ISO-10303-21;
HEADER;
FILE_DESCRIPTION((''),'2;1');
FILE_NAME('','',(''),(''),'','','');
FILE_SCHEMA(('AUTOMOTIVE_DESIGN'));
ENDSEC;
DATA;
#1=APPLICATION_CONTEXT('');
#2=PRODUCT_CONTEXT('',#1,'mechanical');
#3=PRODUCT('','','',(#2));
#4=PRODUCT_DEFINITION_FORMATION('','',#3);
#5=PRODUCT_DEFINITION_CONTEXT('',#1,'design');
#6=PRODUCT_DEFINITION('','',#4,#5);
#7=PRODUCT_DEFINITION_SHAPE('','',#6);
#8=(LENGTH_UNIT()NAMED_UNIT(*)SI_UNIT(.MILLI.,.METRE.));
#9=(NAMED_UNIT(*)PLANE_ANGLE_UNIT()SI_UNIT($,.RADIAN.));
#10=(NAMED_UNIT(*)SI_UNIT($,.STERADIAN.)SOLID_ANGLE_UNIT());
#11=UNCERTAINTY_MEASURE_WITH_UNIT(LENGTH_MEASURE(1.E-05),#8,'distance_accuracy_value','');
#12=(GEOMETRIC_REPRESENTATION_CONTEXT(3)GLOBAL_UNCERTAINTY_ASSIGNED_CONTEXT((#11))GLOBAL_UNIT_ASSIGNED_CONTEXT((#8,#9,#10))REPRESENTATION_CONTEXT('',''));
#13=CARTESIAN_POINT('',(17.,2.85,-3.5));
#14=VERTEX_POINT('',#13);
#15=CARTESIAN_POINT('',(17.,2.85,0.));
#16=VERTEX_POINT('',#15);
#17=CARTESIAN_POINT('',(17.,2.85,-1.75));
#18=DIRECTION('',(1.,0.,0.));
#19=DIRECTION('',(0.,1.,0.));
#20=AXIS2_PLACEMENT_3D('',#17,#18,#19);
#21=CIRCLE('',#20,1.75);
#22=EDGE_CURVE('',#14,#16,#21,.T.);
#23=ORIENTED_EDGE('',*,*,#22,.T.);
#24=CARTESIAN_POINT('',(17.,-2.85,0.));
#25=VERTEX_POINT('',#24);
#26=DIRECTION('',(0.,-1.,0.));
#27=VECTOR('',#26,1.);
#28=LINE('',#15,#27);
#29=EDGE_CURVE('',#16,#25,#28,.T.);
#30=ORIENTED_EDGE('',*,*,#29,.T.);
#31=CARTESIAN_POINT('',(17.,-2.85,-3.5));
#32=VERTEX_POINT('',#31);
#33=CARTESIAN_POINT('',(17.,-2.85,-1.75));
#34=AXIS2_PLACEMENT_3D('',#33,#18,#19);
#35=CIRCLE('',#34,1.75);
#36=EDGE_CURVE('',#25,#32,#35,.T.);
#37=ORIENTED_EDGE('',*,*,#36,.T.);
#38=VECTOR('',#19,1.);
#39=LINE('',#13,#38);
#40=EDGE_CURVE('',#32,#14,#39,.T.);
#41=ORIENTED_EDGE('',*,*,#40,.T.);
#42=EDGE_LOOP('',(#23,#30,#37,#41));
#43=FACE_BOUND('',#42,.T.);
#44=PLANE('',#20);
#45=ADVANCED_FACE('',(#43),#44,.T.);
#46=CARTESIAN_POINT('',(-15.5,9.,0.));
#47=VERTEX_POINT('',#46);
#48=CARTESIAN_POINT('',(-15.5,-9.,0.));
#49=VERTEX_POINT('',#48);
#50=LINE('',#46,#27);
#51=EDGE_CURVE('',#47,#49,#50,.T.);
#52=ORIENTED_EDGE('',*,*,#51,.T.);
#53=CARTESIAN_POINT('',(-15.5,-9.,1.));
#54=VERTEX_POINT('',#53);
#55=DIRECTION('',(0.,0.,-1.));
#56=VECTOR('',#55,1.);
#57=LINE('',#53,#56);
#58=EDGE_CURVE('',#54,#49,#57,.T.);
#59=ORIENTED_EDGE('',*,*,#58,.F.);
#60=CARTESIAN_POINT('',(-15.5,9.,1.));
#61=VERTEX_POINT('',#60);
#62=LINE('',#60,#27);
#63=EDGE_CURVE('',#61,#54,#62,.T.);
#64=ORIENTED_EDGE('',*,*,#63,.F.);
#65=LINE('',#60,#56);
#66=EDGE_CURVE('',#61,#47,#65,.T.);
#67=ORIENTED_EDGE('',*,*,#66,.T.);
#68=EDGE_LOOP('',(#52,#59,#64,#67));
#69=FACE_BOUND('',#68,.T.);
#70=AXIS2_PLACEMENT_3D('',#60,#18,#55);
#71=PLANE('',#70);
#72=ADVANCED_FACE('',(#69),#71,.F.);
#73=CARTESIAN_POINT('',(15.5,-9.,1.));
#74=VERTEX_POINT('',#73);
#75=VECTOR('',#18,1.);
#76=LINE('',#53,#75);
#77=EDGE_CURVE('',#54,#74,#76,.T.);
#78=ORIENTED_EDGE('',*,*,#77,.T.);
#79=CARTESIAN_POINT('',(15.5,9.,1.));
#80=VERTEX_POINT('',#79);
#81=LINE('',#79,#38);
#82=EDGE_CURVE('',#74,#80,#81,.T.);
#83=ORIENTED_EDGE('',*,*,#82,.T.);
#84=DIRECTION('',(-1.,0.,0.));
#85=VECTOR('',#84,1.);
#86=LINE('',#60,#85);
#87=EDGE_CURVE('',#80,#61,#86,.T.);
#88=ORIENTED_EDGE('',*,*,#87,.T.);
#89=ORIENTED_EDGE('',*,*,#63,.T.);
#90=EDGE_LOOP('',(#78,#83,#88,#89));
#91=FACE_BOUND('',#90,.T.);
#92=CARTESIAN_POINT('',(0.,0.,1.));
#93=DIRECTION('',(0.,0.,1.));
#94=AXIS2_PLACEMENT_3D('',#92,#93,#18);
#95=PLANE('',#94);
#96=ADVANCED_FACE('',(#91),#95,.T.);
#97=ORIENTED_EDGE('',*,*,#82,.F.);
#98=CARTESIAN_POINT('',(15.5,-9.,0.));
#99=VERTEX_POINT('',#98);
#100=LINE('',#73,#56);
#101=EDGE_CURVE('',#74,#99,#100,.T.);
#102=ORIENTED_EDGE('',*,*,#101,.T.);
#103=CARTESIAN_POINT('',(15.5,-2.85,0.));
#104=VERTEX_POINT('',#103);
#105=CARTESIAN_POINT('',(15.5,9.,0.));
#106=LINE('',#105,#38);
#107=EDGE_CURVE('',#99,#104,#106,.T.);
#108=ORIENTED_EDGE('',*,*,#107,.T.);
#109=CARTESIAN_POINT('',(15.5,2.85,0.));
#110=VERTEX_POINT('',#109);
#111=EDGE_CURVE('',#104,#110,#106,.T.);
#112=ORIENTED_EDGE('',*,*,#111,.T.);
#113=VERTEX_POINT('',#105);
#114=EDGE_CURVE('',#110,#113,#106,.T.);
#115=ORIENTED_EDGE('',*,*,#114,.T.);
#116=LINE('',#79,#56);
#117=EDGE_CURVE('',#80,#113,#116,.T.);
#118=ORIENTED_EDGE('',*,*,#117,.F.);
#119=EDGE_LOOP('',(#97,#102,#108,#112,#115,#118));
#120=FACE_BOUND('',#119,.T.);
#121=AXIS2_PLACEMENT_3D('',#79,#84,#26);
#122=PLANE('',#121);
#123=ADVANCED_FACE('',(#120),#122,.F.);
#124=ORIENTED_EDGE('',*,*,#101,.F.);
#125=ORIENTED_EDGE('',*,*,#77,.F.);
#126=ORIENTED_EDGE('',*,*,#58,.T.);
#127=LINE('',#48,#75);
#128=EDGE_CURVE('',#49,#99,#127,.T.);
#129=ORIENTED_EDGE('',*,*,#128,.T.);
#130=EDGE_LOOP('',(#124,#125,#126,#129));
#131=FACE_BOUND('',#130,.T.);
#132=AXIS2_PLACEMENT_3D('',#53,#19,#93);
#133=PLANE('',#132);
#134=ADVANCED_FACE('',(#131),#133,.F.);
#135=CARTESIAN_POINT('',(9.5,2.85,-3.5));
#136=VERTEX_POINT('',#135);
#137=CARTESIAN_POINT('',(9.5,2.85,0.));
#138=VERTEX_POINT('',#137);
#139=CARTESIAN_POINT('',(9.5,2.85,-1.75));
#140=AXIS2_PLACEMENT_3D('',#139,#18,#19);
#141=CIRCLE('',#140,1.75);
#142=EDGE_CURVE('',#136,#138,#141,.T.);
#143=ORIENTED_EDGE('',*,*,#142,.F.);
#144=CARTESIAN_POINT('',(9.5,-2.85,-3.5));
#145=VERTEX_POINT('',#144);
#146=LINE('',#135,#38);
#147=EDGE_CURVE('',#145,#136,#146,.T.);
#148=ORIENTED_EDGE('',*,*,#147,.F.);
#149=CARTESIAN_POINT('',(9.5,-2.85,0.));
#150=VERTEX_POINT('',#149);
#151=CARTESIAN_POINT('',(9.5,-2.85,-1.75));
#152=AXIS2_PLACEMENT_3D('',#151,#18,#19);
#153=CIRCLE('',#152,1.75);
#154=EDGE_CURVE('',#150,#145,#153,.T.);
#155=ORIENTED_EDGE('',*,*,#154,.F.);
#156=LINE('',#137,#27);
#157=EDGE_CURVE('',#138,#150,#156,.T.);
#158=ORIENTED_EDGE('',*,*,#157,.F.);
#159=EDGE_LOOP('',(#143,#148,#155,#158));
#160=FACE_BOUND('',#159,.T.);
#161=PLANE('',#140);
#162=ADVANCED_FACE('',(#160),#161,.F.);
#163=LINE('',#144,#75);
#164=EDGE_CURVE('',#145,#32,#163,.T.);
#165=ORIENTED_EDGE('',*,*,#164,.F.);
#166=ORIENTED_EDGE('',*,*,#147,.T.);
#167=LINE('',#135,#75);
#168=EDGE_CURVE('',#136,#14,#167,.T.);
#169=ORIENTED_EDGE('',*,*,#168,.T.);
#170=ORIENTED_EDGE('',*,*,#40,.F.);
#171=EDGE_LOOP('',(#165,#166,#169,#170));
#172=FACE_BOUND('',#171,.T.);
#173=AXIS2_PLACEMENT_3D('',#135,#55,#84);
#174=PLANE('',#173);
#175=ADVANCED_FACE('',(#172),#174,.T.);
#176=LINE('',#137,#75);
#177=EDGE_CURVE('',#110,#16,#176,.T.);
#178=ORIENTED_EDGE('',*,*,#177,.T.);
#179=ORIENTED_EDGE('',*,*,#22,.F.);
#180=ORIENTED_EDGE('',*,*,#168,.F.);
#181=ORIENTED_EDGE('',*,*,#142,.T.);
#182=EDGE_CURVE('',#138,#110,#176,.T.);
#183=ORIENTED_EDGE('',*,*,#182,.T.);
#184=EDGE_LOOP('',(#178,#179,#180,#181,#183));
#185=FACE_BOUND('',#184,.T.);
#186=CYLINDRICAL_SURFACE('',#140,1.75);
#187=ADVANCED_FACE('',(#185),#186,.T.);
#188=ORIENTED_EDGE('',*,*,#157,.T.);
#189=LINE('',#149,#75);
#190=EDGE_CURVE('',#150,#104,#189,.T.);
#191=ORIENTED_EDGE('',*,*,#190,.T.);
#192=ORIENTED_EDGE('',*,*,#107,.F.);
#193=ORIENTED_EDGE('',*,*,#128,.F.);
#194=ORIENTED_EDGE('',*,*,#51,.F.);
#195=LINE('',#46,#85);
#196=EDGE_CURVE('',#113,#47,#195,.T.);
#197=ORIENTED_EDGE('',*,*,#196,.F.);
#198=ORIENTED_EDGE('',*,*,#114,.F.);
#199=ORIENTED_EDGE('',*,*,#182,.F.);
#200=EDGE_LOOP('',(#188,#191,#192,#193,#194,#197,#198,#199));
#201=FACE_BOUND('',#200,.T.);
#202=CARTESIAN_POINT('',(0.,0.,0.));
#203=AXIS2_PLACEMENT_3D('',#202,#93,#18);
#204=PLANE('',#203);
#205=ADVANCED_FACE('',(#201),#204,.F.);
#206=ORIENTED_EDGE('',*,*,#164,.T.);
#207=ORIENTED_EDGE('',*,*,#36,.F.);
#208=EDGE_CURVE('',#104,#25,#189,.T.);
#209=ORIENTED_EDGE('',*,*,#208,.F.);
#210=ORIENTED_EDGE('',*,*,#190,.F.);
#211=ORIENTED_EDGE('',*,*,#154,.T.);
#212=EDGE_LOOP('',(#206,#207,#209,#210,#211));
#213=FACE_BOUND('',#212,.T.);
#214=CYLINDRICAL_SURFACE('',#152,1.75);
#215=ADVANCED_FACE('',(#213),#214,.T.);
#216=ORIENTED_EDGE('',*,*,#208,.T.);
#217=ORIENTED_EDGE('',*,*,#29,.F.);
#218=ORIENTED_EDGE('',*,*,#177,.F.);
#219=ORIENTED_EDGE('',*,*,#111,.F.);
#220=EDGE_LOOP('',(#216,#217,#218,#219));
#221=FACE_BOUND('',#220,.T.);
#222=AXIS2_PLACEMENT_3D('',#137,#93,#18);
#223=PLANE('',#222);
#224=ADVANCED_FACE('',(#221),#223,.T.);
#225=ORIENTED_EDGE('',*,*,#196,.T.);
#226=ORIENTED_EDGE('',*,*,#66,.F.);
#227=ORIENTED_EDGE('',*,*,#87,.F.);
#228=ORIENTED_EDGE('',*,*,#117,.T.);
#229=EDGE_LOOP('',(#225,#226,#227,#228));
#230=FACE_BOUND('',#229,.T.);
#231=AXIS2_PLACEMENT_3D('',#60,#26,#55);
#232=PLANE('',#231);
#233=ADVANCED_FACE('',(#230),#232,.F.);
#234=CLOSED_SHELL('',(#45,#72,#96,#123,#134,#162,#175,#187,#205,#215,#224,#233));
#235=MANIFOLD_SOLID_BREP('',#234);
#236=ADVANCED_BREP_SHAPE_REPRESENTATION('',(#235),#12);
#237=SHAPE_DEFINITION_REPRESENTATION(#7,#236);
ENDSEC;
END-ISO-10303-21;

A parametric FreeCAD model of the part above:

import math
import FreeCAD as App
import Part
import Sketcher

V = App.Vector

doc = App.newDocument("Part")
body = doc.addObject("PartDesign::Body", "Body")

sketch1 = doc.addObject("Sketcher::SketchObject", "Sketch")
body.addObject(sketch1)
sketch1.AttachmentSupport = (doc.XY_Plane, [""])
sketch1.MapMode = "FlatFace"
sketch1.addGeometry(Part.LineSegment(V(-16, 9, 0), V(-16, -9, 0)), False)
sketch1.addGeometry(Part.LineSegment(V(-16, -9, 0), V(16, -9, 0)), False)
sketch1.addGeometry(Part.LineSegment(V(16, -9, 0), V(16, 9, 0)), False)
sketch1.addGeometry(Part.LineSegment(V(16, 9, 0), V(-16, 9, 0)), False)
sketch1.addConstraint(Sketcher.Constraint("Coincident", 0, 2, 1, 1))
sketch1.addConstraint(Sketcher.Constraint("Coincident", 1, 2, 2, 1))
sketch1.addConstraint(Sketcher.Constraint("Coincident", 2, 2, 3, 1))
sketch1.addConstraint(Sketcher.Constraint("Coincident", 3, 2, 0, 1))
sketch1.addConstraint(Sketcher.Constraint("Vertical", 0))
sketch1.addConstraint(Sketcher.Constraint("Horizontal", 1))
sketch1.addConstraint(Sketcher.Constraint("Vertical", 2))
sketch1.addConstraint(Sketcher.Constraint("Horizontal", 3))
sketch1.addConstraint(Sketcher.Constraint("Symmetric", 0, 2, 2, 2, -1, 1))
sketch1.addConstraint(Sketcher.Constraint("DistanceX", 1, 1, 1, 2, 31.0))
sketch1.addConstraint(Sketcher.Constraint("DistanceY", 0, 2, 0, 1, 18.0))
pad1 = doc.addObject("PartDesign::Pad", "Pad")
body.addObject(pad1)
pad1.Profile = sketch1
pad1.Length = 1

sketch2 = doc.addObject("Sketcher::SketchObject", "Sketch001")
body.addObject(sketch2)
sketch2.AttachmentSupport = (doc.YZ_Plane, [""])
sketch2.MapMode = "FlatFace"
sketch2.AttachmentOffset = App.Placement(V(0, 0, 15.5), App.Rotation())
sketch2.addGeometry(Part.LineSegment(V(-2.9, -3.5, 0), V(2.9, -3.5, 0)), False)
sketch2.addGeometry(Part.ArcOfCircle(Part.Circle(V(2.9, -1.8, 0), V(0, 0, 1), 1.8), math.radians(-90), math.radians(90)), False)
sketch2.addGeometry(Part.LineSegment(V(2.9, 0, 0), V(-2.9, 0, 0)), False)
sketch2.addGeometry(Part.ArcOfCircle(Part.Circle(V(-2.9, -1.8, 0), V(0, 0, 1), 1.8), math.radians(90), math.radians(270)), False)
sketch2.addConstraint(Sketcher.Constraint("Tangent", 0, 2, 1, 1))
sketch2.addConstraint(Sketcher.Constraint("Tangent", 1, 2, 2, 1))
sketch2.addConstraint(Sketcher.Constraint("Tangent", 2, 2, 3, 1))
sketch2.addConstraint(Sketcher.Constraint("Tangent", 3, 2, 0, 1))
sketch2.addConstraint(Sketcher.Constraint("Horizontal", 0))
sketch2.addConstraint(Sketcher.Constraint("Horizontal", 2))
sketch2.addConstraint(Sketcher.Constraint("Symmetric", 1, 2, 2, 2, -1, 1))
sketch2.addConstraint(Sketcher.Constraint("Radius", 1, 1.75))
sketch2.addConstraint(Sketcher.Constraint("DistanceX", 0, 1, 0, 2, 5.7))
pad2 = doc.addObject("PartDesign::Pad", "Pad001")
body.addObject(pad2)
pad2.Profile = sketch2
pad2.Type = "TwoLengths"
pad2.Length = 1.5
pad2.Length2 = 6

doc.recompute()
